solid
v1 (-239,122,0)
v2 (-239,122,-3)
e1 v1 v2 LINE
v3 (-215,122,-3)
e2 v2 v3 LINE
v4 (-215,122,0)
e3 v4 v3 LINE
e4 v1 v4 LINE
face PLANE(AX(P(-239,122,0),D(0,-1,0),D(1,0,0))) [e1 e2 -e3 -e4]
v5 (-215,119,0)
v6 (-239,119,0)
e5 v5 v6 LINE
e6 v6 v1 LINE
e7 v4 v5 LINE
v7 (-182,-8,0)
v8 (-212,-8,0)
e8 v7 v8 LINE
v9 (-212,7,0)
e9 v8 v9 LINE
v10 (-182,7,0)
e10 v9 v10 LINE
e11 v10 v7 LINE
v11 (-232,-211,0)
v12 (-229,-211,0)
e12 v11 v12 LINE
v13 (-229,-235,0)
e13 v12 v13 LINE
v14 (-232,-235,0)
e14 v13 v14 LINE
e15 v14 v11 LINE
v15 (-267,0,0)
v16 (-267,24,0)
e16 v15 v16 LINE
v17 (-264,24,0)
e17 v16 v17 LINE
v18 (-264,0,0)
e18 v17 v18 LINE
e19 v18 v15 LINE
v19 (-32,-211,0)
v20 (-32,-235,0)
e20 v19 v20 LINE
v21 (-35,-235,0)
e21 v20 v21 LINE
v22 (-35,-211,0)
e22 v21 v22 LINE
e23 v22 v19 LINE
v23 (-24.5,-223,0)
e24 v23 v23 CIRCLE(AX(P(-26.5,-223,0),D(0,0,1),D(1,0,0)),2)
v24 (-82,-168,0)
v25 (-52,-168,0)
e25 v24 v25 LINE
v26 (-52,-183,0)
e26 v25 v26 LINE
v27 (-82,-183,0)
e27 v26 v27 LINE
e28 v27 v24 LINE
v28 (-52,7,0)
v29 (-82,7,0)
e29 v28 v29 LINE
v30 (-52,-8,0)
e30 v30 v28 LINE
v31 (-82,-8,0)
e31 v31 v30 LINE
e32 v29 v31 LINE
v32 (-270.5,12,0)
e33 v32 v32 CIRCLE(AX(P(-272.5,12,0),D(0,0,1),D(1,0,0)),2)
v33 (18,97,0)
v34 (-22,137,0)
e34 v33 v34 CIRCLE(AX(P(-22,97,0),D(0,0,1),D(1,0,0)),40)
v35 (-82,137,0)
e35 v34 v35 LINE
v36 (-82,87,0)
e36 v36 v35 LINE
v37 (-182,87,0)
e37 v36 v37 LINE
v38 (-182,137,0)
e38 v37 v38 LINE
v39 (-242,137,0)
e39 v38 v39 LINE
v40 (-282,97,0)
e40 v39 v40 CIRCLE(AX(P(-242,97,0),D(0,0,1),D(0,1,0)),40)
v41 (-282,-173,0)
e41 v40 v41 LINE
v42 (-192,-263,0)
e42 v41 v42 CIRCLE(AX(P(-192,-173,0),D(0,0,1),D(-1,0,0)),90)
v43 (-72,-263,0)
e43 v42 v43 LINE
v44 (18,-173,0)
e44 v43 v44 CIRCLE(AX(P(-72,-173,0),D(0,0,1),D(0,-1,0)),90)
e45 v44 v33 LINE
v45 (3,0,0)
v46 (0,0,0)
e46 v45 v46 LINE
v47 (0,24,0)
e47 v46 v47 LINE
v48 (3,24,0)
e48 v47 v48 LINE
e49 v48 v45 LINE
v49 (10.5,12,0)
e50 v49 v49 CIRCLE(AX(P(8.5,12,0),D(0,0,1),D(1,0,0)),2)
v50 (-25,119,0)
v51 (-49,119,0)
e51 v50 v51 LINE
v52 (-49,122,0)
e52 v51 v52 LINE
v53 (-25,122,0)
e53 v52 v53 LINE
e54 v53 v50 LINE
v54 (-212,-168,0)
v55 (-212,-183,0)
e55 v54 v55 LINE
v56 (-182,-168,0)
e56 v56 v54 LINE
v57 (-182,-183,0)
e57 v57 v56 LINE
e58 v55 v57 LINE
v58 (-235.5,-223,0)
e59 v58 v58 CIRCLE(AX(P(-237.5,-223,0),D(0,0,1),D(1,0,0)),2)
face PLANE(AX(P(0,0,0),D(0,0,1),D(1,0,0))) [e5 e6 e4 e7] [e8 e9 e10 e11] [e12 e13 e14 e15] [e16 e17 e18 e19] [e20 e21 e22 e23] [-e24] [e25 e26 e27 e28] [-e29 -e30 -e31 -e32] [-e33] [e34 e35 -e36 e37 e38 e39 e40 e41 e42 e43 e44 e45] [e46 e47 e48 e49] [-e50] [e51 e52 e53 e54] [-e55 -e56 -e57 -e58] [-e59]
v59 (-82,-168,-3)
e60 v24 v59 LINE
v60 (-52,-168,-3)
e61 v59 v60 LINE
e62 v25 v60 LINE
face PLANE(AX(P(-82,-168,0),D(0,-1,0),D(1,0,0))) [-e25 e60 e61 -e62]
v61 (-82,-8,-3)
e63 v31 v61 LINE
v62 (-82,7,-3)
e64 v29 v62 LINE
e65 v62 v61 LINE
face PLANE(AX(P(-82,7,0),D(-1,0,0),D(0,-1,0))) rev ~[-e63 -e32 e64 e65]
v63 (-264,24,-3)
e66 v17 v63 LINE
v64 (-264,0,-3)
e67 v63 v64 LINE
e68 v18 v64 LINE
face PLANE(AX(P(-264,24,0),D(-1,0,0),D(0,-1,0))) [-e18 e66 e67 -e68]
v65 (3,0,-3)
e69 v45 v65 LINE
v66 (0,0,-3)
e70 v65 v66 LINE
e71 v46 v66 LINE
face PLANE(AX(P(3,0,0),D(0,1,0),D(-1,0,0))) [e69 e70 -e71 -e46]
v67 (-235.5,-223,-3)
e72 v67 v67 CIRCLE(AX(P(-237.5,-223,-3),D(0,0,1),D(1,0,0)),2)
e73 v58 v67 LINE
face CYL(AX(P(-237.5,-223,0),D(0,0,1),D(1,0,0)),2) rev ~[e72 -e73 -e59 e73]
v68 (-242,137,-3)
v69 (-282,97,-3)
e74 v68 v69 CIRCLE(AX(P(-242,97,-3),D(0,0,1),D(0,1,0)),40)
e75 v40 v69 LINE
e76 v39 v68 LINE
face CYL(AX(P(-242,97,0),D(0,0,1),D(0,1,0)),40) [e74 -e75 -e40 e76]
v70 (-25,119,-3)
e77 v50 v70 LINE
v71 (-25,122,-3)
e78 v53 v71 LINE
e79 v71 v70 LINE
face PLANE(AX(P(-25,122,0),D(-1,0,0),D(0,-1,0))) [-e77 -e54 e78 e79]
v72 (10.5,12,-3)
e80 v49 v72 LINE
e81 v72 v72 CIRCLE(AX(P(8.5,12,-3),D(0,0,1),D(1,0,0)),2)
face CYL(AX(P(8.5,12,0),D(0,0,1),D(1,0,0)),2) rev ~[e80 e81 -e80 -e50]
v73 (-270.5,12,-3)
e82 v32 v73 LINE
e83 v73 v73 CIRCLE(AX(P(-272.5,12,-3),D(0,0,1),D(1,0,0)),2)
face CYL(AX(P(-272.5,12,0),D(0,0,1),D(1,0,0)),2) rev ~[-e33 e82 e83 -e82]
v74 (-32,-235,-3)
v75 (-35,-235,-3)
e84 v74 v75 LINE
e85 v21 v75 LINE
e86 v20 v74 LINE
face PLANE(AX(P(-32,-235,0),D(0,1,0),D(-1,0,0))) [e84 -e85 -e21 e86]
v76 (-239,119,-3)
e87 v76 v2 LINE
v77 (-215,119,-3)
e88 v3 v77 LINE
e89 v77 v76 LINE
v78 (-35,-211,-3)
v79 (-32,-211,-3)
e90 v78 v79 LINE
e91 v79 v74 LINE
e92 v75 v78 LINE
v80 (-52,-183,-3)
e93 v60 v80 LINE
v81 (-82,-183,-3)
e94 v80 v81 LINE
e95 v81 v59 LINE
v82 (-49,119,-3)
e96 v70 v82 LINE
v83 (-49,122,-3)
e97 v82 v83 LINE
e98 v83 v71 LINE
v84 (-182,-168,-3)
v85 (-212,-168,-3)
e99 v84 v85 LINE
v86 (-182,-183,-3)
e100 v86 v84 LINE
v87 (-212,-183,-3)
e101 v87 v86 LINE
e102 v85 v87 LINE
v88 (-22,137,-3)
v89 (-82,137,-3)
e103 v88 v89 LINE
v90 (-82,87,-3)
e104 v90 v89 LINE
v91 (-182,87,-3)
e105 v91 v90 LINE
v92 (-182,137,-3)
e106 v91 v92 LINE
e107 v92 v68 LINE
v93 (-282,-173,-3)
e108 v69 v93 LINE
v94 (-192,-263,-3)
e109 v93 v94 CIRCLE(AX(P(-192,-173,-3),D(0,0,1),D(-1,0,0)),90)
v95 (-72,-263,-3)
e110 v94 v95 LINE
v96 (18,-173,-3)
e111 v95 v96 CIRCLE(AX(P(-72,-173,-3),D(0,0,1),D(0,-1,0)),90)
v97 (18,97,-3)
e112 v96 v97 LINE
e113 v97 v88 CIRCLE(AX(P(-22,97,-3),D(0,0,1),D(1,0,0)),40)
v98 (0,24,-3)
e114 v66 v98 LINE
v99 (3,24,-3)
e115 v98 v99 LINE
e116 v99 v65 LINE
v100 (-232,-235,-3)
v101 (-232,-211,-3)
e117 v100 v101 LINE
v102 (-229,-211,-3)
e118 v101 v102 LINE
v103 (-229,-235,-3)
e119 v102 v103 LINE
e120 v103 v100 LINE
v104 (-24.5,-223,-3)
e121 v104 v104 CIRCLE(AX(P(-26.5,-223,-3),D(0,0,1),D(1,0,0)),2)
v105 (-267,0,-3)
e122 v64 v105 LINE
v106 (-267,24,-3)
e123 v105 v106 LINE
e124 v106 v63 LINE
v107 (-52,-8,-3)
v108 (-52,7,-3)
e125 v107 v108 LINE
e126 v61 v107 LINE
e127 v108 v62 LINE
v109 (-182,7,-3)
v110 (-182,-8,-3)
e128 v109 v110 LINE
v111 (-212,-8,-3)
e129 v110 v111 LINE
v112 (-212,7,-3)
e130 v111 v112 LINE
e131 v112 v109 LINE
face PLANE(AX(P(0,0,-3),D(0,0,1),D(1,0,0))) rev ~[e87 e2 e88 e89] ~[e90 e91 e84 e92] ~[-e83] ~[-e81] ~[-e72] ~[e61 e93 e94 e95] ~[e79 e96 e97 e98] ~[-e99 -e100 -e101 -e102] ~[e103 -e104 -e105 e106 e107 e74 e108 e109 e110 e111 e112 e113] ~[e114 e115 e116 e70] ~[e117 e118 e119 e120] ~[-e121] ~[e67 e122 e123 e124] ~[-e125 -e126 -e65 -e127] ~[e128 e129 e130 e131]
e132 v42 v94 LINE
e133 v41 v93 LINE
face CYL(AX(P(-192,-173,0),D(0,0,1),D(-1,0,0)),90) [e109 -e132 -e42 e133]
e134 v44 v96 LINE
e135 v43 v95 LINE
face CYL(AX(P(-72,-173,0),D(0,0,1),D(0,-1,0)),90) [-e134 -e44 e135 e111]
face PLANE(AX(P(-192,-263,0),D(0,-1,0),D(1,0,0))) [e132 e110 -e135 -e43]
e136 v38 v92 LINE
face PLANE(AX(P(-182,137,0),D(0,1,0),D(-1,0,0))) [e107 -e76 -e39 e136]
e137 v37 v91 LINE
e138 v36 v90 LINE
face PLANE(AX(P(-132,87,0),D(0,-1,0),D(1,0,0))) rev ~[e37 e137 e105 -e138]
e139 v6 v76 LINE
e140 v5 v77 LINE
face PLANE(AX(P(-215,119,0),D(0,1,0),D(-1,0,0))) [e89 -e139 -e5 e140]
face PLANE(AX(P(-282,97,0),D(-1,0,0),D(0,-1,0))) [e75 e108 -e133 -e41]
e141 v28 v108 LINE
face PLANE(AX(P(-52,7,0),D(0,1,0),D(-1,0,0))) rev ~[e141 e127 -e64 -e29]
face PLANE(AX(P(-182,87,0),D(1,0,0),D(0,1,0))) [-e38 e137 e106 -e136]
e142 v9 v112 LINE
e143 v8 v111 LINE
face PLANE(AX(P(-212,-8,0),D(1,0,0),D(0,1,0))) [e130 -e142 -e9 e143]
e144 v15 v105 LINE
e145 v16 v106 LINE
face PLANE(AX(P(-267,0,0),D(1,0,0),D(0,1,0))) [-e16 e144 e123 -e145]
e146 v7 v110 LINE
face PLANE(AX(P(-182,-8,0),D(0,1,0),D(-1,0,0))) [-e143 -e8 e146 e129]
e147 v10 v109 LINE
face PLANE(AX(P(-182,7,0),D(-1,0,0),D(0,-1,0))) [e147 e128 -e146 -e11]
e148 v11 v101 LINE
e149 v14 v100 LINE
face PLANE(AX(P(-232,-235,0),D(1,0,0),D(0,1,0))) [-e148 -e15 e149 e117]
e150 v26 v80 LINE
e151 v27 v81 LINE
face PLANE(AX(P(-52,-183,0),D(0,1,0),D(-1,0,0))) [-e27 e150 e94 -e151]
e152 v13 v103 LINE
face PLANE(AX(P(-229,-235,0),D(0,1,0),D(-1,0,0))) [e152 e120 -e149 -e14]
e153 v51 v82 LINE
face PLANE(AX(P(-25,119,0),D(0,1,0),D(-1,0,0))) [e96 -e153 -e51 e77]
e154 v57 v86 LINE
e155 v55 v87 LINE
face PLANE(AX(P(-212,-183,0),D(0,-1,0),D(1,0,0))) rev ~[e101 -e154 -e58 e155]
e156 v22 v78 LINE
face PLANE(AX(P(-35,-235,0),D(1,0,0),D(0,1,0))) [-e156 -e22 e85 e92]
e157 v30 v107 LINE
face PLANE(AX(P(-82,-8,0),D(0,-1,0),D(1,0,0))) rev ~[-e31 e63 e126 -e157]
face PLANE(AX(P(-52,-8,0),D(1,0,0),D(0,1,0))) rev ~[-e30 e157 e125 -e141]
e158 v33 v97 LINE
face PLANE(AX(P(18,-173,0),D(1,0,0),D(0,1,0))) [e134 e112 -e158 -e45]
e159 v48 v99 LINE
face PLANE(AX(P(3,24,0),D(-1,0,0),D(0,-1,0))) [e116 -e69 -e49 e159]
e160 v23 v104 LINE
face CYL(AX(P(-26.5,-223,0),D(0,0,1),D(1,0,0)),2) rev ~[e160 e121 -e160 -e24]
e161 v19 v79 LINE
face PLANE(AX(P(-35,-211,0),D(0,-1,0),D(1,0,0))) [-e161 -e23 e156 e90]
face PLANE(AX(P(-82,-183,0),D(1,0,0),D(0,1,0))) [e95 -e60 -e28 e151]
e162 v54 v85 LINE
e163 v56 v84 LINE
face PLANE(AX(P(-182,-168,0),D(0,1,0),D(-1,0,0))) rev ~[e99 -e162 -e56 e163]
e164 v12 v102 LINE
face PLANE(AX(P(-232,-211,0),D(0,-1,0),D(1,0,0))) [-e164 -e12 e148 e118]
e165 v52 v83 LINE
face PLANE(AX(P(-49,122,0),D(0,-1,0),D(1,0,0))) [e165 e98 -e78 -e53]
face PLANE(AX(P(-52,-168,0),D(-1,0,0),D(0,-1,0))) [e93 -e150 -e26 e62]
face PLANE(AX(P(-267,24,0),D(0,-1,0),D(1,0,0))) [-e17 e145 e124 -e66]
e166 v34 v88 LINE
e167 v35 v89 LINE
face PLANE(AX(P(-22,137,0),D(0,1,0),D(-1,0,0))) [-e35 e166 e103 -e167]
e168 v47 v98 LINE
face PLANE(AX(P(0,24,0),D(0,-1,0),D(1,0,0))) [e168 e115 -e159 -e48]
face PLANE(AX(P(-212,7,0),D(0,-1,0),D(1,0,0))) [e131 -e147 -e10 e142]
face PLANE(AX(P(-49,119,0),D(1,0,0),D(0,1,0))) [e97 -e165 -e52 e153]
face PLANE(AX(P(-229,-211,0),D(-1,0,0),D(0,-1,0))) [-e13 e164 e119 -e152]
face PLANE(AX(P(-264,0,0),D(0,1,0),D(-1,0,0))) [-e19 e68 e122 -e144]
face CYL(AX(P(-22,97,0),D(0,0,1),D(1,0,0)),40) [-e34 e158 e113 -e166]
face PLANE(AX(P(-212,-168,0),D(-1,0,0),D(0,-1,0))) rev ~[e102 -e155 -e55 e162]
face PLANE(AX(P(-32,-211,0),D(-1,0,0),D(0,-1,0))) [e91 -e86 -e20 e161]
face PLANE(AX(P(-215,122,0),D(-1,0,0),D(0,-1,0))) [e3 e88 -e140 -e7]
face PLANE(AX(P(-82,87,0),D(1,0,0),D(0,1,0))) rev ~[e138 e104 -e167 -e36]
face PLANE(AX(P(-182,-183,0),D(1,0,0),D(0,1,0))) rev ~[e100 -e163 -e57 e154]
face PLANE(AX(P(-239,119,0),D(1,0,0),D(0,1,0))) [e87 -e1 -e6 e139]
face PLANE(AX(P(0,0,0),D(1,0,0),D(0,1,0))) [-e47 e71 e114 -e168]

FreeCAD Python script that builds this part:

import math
import FreeCAD as App
import Part
import Sketcher
from FreeCAD import Vector


def add_polygon(sketch, points):
    """Adds a closed chain of lines whose ends are joined by coincident constraints."""
    first, n = sketch.GeometryCount, len(points)
    for a, b in zip(points, points[1:] + points[:1]):
        sketch.addGeometry(Part.LineSegment(App.Vector(*a, 0), App.Vector(*b, 0)), False)
    for i in range(n):
        sketch.addConstraint(Sketcher.Constraint("Coincident", first + i, 2, first + (i + 1) % n, 1))

doc = App.newDocument("Part")
body = doc.addObject("PartDesign::Body", "Body")

sketch1 = doc.addObject("Sketcher::SketchObject", "Sketch")
body.addObject(sketch1)
sketch1.AttachmentSupport = (doc.XY_Plane, [""])
sketch1.MapMode = "FlatFace"
sketch1.addGeometry(Part.ArcOfCircle(Part.Circle(Vector(-22, 97, 0), Vector(0, 0, 1), 40), math.radians(0), math.radians(90)), False)
sketch1.addGeometry(Part.LineSegment(Vector(-22, 137, 0), Vector(-82, 137, 0)), False)
sketch1.addGeometry(Part.LineSegment(Vector(-82, 137, 0), Vector(-82, 87, 0)), False)
sketch1.addGeometry(Part.LineSegment(Vector(-82, 87, 0), Vector(-182, 87, 0)), False)
sketch1.addGeometry(Part.LineSegment(Vector(-182, 87, 0), Vector(-182, 137, 0)), False)
sketch1.addGeometry(Part.LineSegment(Vector(-182, 137, 0), Vector(-242, 137, 0)), False)
sketch1.addGeometry(Part.ArcOfCircle(Part.Circle(Vector(-242, 97, 0), Vector(0, 0, 1), 40), math.radians(90), math.radians(180)), False)
sketch1.addGeometry(Part.LineSegment(Vector(-282, 97, 0), Vector(-282, -173, 0)), False)
sketch1.addGeometry(Part.ArcOfCircle(Part.Circle(Vector(-192, -173, 0), Vector(0, 0, 1), 90), math.radians(180), math.radians(270)), False)
sketch1.addGeometry(Part.LineSegment(Vector(-192, -263, 0), Vector(-72, -263, 0)), False)
sketch1.addGeometry(Part.ArcOfCircle(Part.Circle(Vector(-72, -173, 0), Vector(0, 0, 1), 90), math.radians(-90), math.radians(0)), False)
sketch1.addGeometry(Part.LineSegment(Vector(18, -173, 0), Vector(18, 97, 0)), False)
sketch1.addGeometry(Part.Circle(Vector(-237.5, -223, 0), Vector(0, 0, 1), 2), False)
add_polygon(sketch1, [(-229, -235), (-232, -235), (-232, -211), (-229, -211)])
add_polygon(sketch1, [(-32, -235), (-35, -235), (-35, -211), (-32, -211)])
sketch1.addGeometry(Part.Circle(Vector(-26.5, -223, 0), Vector(0, 0, 1), 2), False)
sketch1.addGeometry(Part.Circle(Vector(-272.5, 12, 0), Vector(0, 0, 1), 2), False)
add_polygon(sketch1, [(-264, 0), (-267, 0), (-267, 24), (-264, 24)])
add_polygon(sketch1, [(-215, 122), (-215, 119), (-239, 119), (-239, 122)])
add_polygon(sketch1, [(3, 0), (0, 0), (0, 24), (3, 24)])
sketch1.addGeometry(Part.Circle(Vector(8.5, 12, 0), Vector(0, 0, 1), 2), False)
add_polygon(sketch1, [(-25, 122), (-25, 119), (-49, 119), (-49, 122)])
sketch1.addConstraint([
    Sketcher.Constraint("Tangent", 0, 2, 1, 1),
    Sketcher.Constraint("Coincident", 1, 2, 2, 1),
    Sketcher.Constraint("Coincident", 2, 2, 3, 1),
    Sketcher.Constraint("Coincident", 3, 2, 4, 1),
    Sketcher.Constraint("Coincident", 4, 2, 5, 1),
    Sketcher.Constraint("Tangent", 5, 2, 6, 1),
    Sketcher.Constraint("Tangent", 6, 2, 7, 1),
    Sketcher.Constraint("Tangent", 7, 2, 8, 1),
    Sketcher.Constraint("Tangent", 8, 2, 9, 1),
    Sketcher.Constraint("Tangent", 9, 2, 10, 1),
    Sketcher.Constraint("Tangent", 10, 2, 11, 1),
    Sketcher.Constraint("Tangent", 11, 2, 0, 1),
    Sketcher.Constraint("Horizontal", 1),
    Sketcher.Constraint("Vertical", 2),
    Sketcher.Constraint("Horizontal", 3),
    Sketcher.Constraint("Vertical", 4),
    Sketcher.Constraint("Horizontal", 5),
    Sketcher.Constraint("Vertical", 7),
    Sketcher.Constraint("Horizontal", 9),
    Sketcher.Constraint("Vertical", 11),
    Sketcher.Constraint("Horizontal", 13),
    Sketcher.Constraint("Vertical", 14),
    Sketcher.Constraint("Horizontal", 15),
    Sketcher.Constraint("Vertical", 16),
    Sketcher.Constraint("Horizontal", 17),
    Sketcher.Constraint("Vertical", 18),
    Sketcher.Constraint("Horizontal", 19),
    Sketcher.Constraint("Vertical", 20),
    Sketcher.Constraint("Horizontal", 23),
    Sketcher.Constraint("Vertical", 24),
    Sketcher.Constraint("Horizontal", 25),
    Sketcher.Constraint("Vertical", 26),
    Sketcher.Constraint("Vertical", 27),
    Sketcher.Constraint("Horizontal", 28),
    Sketcher.Constraint("Vertical", 29),
    Sketcher.Constraint("Horizontal", 30),
    Sketcher.Constraint("Horizontal", 31),
    Sketcher.Constraint("Vertical", 32),
    Sketcher.Constraint("Horizontal", 33),
    Sketcher.Constraint("Vertical", 34),
    Sketcher.Constraint("Vertical", 36),
    Sketcher.Constraint("Horizontal", 37),
    Sketcher.Constraint("Vertical", 38),
    Sketcher.Constraint("Horizontal", 39),
    Sketcher.Constraint("Coincident", 31, 2, -1, 1),
    Sketcher.Constraint("Equal", 0, 6),
    Sketcher.Constraint("Equal", 8, 10),
    Sketcher.Constraint("Equal", 12, 21),
    Sketcher.Constraint("Equal", 21, 22),
    Sketcher.Constraint("Equal", 22, 35),
    Sketcher.Constraint("PointOnObject", 23, 2, -1),
    Sketcher.Constraint("Horizontal", 0, 3, 6, 3),
    Sketcher.Constraint("Horizontal", 12, 3, 21, 3),
    Sketcher.Constraint("Horizontal", 22, 3, 35, 3),
    Sketcher.Constraint("Horizontal", 16, 2, 17, 2),
    Sketcher.Constraint("Horizontal", 15, 2, 18, 2),
    Sketcher.Constraint("Horizontal", 25, 2, 32, 2),
    Sketcher.Constraint("Horizontal", 28, 2, 36, 2),
    Sketcher.Constraint("Horizontal", 30, 2, 38, 2),
    Sketcher.Constraint("Equal", 1, 5),
    Sketcher.Constraint("Equal", 15, 17),
    Sketcher.Constraint("Equal", 19, 23),
    Sketcher.Constraint("Equal", 25, 31),
    Sketcher.Constraint("Equal", 30, 37),
    Sketcher.Constraint("Equal", 39, 14),
    Sketcher.Constraint("Equal", 20, 24),
    Sketcher.Constraint("Equal", 33, 27),
    Sketcher.Constraint("DistanceY", 2, 2, 2, 1, 50.0),
    Sketcher.Constraint("Diameter", 12, 4.0),
    Sketcher.Constraint("Radius", 0, 40.0),
    Sketcher.Constraint("Radius", 8, 90.0),
    Sketcher.Constraint("DistanceY", 12, 3, 8, 3, 50.0),
    Sketcher.Constraint("DistanceX", 7, 2, 13, 2, 50.0),
    Sketcher.Constraint("DistanceX", 19, 2, 10, 2, 50.0),
    Sketcher.Constraint("DistanceX", 1, 2, 1, 1, 60.0),
    Sketcher.Constraint("DistanceX", 3, 2, 3, 1, 100.0),
    Sketcher.Constraint("DistanceX", 13, 2, 13, 1, 3.0),
    Sketcher.Constraint("DistanceX", 28, 2, 28, 1, 24.0),
    Sketcher.Constraint("DistanceY", 7, 2, 7, 1, 270.0),
    Sketcher.Constraint("DistanceX", 0, 3, -1, 1, 22.0),
    Sketcher.Constraint("DistanceY", -1, 1, 0, 3, 97.0),
    Sketcher.Constraint("DistanceY", -1, 1, 22, 3, 12.0),
    Sketcher.Constraint("DistanceY", 13, 2, -1, 1, 235.0),
    Sketcher.Constraint("DistanceX", 23, 2, -1, 1, 267.0),
    Sketcher.Constraint("DistanceX", 27, 2, -1, 1, 215.0),
    Sketcher.Constraint("DistanceY", -1, 1, 27, 2, 119.0),
    Sketcher.Constraint("DistanceX", 36, 2, -1, 1, 25.0),
    Sketcher.Constraint("DistanceX", 12, 3, 21, 3, 211.0),
    Sketcher.Constraint("DistanceX", 22, 3, 12, 3, 35.0),
    Sketcher.Constraint("DistanceX", 21, 3, 35, 3, 35.0),
    Sketcher.Constraint("DistanceX", 12, 3, -1, 1, 237.5),
])
pad1 = doc.addObject("PartDesign::Pad", "Pad")
body.addObject(pad1)
pad1.Profile = sketch1
pad1.Length = 3
pad1.Reversed = True

sketch2 = doc.addObject("Sketcher::SketchObject", "Sketch001")
body.addObject(sketch2)
sketch2.AttachmentSupport = (doc.XY_Plane, [""])
sketch2.MapMode = "FlatFace"
add_polygon(sketch2, [(-52, -8), (-52, 7), (-82, 7), (-82, -8)])
add_polygon(sketch2, [(-182, 7), (-212, 7), (-212, -8), (-182, -8)])
add_polygon(sketch2, [(-82, -183), (-52, -183), (-52, -168), (-82, -168)])
add_polygon(sketch2, [(-182, -183), (-182, -168), (-212, -168), (-212, -183)])
sketch2.addConstraint([
    Sketcher.Constraint("Vertical", 0),
    Sketcher.Constraint("Horizontal", 1),
    Sketcher.Constraint("Vertical", 2),
    Sketcher.Constraint("Horizontal", 3),
    Sketcher.Constraint("Horizontal", 4),
    Sketcher.Constraint("Vertical", 5),
    Sketcher.Constraint("Horizontal", 6),
    Sketcher.Constraint("Vertical", 7),
    Sketcher.Constraint("Horizontal", 8),
    Sketcher.Constraint("Vertical", 9),
    Sketcher.Constraint("Horizontal", 10),
    Sketcher.Constraint("Vertical", 11),
    Sketcher.Constraint("Vertical", 12),
    Sketcher.Constraint("Horizontal", 13),
    Sketcher.Constraint("Vertical", 14),
    Sketcher.Constraint("Horizontal", 15),
    Sketcher.Constraint("Horizontal", 1, 2, 4, 2),
    Sketcher.Constraint("Horizontal", 3, 2, 5, 2),
    Sketcher.Constraint("Horizontal", 10, 2, 12, 2),
    Sketcher.Constraint("Horizontal", 11, 2, 14, 2),
    Sketcher.Constraint("Vertical", 3, 2, 8, 2),
    Sketcher.Constraint("Vertical", 2, 2, 10, 2),
    Sketcher.Constraint("Vertical", 7, 2, 12, 2),
    Sketcher.Constraint("Vertical", 5, 2, 13, 2),
    Sketcher.Constraint("Equal", 3, 4),
    Sketcher.Constraint("Equal", 7, 9),
    Sketcher.Constraint("DistanceX", 1, 2, 1, 1, 30.0),
    Sketcher.Constraint("DistanceY", 0, 1, 0, 2, 15.0),
    Sketcher.Constraint("DistanceX", 0, 2, -1, 1, 52.0),
    Sketcher.Constraint("DistanceY", -1, 1, 0, 2, 7.0),
    Sketcher.Constraint("DistanceX", 4, 2, -1, 1, 212.0),
    Sketcher.Constraint("DistanceY", 8, 2, -1, 1, 183.0),
])
pocket1 = doc.addObject("PartDesign::Pocket", "Pocket")
body.addObject(pocket1)
pocket1.Profile = sketch2
pocket1.Length = 3

doc.recompute()
